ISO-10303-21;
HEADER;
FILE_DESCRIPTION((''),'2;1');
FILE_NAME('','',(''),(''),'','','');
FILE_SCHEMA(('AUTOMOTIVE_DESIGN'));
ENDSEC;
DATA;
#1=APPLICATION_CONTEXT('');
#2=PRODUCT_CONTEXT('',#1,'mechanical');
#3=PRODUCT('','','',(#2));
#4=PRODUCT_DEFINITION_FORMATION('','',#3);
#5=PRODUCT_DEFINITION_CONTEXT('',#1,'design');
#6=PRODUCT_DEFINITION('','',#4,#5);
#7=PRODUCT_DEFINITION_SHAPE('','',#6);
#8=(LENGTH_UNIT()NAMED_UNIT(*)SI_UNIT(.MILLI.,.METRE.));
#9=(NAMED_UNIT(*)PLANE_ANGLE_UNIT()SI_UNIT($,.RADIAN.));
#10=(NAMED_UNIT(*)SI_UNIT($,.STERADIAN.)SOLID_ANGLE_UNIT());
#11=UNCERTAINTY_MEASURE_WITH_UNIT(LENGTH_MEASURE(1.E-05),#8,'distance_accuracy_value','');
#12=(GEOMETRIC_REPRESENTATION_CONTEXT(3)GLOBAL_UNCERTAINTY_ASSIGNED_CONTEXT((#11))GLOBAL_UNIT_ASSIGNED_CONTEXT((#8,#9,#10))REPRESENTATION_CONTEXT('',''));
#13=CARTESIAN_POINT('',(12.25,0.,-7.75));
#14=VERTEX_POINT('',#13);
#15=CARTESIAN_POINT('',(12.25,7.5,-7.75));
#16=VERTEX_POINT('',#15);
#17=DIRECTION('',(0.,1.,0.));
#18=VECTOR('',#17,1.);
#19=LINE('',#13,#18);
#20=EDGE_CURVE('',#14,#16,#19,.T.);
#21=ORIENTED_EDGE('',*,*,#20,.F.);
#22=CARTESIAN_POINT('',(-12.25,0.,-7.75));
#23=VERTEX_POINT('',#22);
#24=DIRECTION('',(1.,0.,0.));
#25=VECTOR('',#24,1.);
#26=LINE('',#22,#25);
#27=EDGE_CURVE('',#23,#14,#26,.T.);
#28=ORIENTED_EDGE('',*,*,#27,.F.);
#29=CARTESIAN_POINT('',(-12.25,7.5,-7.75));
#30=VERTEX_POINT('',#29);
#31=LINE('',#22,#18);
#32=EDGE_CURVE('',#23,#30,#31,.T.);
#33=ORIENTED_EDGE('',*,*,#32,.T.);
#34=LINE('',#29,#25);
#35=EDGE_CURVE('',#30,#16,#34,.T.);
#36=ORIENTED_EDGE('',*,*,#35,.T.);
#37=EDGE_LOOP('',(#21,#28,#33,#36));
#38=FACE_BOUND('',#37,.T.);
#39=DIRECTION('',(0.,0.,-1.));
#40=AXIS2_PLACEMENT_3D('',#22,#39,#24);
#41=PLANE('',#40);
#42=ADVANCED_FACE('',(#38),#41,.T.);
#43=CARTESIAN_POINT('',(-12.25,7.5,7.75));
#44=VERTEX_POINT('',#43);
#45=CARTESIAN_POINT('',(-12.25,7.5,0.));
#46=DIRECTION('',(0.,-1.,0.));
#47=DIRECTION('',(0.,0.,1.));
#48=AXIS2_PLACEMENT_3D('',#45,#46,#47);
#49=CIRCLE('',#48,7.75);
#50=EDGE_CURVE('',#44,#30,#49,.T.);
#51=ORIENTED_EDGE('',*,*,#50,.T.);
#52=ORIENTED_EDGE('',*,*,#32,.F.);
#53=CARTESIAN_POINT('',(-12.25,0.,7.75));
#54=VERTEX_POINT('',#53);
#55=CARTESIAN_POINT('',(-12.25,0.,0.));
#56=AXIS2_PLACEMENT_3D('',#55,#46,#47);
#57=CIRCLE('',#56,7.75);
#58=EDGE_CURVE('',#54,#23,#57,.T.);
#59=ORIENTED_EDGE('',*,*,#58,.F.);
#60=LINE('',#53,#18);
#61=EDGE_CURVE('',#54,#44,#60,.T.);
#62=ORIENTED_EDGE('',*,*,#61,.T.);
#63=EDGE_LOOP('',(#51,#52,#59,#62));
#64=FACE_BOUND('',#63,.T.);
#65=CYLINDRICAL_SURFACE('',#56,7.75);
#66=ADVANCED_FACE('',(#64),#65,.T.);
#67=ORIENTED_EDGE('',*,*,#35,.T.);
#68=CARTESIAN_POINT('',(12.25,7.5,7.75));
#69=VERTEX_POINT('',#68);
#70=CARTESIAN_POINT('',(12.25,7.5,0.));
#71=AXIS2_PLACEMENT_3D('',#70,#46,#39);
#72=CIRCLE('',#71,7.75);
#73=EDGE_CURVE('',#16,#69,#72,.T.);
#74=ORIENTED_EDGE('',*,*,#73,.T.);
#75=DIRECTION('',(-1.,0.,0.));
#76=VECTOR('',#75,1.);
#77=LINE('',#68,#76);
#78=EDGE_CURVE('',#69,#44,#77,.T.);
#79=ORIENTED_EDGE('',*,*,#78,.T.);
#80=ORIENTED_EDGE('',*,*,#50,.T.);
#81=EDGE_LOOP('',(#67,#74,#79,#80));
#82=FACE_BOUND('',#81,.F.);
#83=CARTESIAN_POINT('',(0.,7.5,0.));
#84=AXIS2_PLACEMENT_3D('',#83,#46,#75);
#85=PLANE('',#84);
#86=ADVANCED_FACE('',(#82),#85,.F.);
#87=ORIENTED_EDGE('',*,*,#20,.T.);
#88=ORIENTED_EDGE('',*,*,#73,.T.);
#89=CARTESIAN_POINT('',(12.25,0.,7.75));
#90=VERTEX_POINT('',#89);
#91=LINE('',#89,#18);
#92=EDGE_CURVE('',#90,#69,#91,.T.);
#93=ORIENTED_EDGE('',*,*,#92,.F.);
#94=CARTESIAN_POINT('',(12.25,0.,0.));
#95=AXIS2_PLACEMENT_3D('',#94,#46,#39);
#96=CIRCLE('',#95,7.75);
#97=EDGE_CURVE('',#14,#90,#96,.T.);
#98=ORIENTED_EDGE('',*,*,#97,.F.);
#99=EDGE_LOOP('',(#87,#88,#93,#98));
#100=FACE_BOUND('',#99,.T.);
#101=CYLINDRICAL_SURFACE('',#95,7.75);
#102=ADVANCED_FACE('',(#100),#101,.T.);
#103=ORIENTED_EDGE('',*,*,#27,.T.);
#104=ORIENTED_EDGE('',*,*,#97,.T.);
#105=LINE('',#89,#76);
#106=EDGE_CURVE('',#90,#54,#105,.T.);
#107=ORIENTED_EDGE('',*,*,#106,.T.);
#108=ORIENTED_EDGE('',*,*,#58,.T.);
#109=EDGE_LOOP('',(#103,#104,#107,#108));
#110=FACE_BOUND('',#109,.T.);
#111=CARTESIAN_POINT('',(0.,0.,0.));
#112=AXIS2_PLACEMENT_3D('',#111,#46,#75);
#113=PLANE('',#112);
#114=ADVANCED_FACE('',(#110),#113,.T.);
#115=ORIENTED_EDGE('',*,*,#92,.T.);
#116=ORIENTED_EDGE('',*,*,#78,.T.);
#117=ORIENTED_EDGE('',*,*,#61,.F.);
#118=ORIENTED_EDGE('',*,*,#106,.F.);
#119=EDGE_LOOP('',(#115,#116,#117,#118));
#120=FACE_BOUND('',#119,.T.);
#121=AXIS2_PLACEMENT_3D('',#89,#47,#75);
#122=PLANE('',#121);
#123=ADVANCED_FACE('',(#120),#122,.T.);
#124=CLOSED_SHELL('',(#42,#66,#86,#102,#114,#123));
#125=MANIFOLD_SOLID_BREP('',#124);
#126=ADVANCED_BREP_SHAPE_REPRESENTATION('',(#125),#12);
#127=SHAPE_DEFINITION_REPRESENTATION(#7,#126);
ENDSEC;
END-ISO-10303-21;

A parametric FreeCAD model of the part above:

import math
import FreeCAD as App
import Part
import Sketcher
from FreeCAD import Vector

doc = App.newDocument("Part")
body = doc.addObject("PartDesign::Body", "Body")

# Sketch on XZ plane
sketch1 = doc.addObject("Sketcher::SketchObject", "Sketch")
body.addObject(sketch1)
sketch1.AttachmentSupport = (doc.XZ_Plane, [""])
sketch1.MapMode = "FlatFace"
sketch1.addGeometry(Part.LineSegment(Vector(12, -8, 0), Vector(-12, -8, 0)), False)
sketch1.addGeometry(Part.ArcOfCircle(Part.Circle(Vector(-12, 0, 0), Vector(0, 0, 1), 8), math.radians(90), math.radians(270)), False)
sketch1.addGeometry(Part.LineSegment(Vector(-12, 8, 0), Vector(12, 8, 0)), False)
sketch1.addGeometry(Part.ArcOfCircle(Part.Circle(Vector(12, 0, 0), Vector(0, 0, 1), 8), math.radians(-90), math.radians(90)), False)
sketch1.addConstraint(Sketcher.Constraint("Tangent", 0, 2, 1, 2))
sketch1.addConstraint(Sketcher.Constraint("Tangent", 1, 1, 2, 1))
sketch1.addConstraint(Sketcher.Constraint("Tangent", 2, 2, 3, 2))
sketch1.addConstraint(Sketcher.Constraint("Tangent", 3, 1, 0, 1))
sketch1.addConstraint(Sketcher.Constraint("Horizontal", 0))
sketch1.addConstraint(Sketcher.Constraint("Horizontal", 2))
sketch1.addConstraint(Sketcher.Constraint("Symmetric", 1, 3, 3, 3, -1, 1))
sketch1.addConstraint(Sketcher.Constraint("Radius", 1, 7.75))
sketch1.addConstraint(Sketcher.Constraint("DistanceX", 0, 2, 0, 1, 24.5))
pad1 = doc.addObject("PartDesign::Pad", "Pad")
body.addObject(pad1)
pad1.Profile = sketch1
pad1.Length = 7.5
pad1.Reversed = True

doc.recompute()
